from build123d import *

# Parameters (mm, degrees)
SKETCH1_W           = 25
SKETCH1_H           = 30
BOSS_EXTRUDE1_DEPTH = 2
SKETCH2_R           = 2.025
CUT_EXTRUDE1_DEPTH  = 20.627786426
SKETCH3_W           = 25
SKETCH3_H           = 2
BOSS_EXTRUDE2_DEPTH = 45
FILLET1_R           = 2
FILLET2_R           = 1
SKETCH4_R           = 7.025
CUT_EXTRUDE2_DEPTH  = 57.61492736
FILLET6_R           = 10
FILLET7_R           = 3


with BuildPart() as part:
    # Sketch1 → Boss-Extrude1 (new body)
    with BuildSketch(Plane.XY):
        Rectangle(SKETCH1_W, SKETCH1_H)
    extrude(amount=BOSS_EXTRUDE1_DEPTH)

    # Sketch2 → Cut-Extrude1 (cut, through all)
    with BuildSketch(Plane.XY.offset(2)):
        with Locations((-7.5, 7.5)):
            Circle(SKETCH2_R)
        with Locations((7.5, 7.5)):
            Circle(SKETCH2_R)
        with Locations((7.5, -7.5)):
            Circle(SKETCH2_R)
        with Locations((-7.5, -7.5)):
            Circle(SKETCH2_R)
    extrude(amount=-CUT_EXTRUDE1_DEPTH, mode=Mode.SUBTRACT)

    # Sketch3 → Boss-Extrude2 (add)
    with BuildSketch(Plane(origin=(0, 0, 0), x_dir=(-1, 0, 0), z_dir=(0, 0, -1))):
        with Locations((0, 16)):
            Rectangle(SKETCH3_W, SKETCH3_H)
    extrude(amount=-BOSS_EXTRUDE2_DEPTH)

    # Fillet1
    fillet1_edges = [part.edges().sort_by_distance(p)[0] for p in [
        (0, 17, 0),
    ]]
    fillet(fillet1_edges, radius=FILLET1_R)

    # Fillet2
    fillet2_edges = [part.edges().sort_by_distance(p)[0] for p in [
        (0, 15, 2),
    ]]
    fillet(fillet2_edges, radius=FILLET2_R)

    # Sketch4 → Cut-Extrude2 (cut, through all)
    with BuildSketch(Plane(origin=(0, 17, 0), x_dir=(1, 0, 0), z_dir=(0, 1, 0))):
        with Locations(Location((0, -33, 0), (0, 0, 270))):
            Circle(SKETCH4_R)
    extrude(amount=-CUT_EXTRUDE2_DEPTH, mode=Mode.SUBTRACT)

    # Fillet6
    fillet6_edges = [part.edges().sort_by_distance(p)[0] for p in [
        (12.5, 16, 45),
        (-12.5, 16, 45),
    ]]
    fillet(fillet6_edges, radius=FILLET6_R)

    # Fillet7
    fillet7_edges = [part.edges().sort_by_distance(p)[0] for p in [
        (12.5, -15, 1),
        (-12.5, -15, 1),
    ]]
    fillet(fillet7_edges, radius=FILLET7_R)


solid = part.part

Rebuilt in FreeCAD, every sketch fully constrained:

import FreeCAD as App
import Part
import Sketcher

V = App.Vector
Q = App.Units.Quantity


def edges_at(feature, points):
    """Names of the edges that pass closest to the given points."""
    edges = feature.Shape.Edges
    near = lambda p: min(range(len(edges)), key=lambda i: edges[i].distToShape(Part.Vertex(*p))[0])
    return sorted({f"Edge{near(p) + 1}" for p in points})

doc = App.newDocument("Part")
body = doc.addObject("PartDesign::Body", "Body")

# Sketch on XY plane
sketch1 = body.newObject("Sketcher::SketchObject", "Sketch")
sketch1.AttachmentSupport = (doc.getObject("XY_Plane"), [""])
sketch1.MapMode = "FlatFace"
sketch1.addGeometry(Part.LineSegment(V(-12, 15, 0), V(-12, -15, 0)), False)
sketch1.addGeometry(Part.LineSegment(V(-12, -15, 0), V(12, -15, 0)), False)
sketch1.addGeometry(Part.LineSegment(V(12, -15, 0), V(12, 15, 0)), False)
sketch1.addGeometry(Part.LineSegment(V(12, 15, 0), V(-12, 15, 0)), False)
sketch1.addConstraint(Sketcher.Constraint("Coincident", 0, 2, 1, 1))
sketch1.addConstraint(Sketcher.Constraint("Coincident", 1, 2, 2, 1))
sketch1.addConstraint(Sketcher.Constraint("Coincident", 2, 2, 3, 1))
sketch1.addConstraint(Sketcher.Constraint("Coincident", 3, 2, 0, 1))
sketch1.addConstraint(Sketcher.Constraint("Vertical", 0))
sketch1.addConstraint(Sketcher.Constraint("Horizontal", 1))
sketch1.addConstraint(Sketcher.Constraint("Vertical", 2))
sketch1.addConstraint(Sketcher.Constraint("Horizontal", 3))
sketch1.addConstraint(Sketcher.Constraint("Symmetric", 0, 2, 2, 2, -1, 1))
sketch1.addConstraint(Sketcher.Constraint("DistanceX", 1, 1, 1, 2, Q("25 mm")))
sketch1.addConstraint(Sketcher.Constraint("DistanceY", 0, 2, 0, 1, Q("30 mm")))
pad1 = body.newObject("PartDesign::Pad", "Pad")
pad1.Profile = sketch1
pad1.Length = 2

# Sketch on XY plane
sketch2 = body.newObject("Sketcher::SketchObject", "Sketch001")
sketch2.AttachmentSupport = (doc.getObject("XY_Plane"), [""])
sketch2.MapMode = "FlatFace"
sketch2.AttachmentOffset = App.Placement(V(0, 0, 2), App.Rotation())
sketch2.addGeometry(Part.Circle(V(-7.5, 7.5, 0), V(0, 0, 1), 2), False)
sketch2.addGeometry(Part.Circle(V(7.5, 7.5, 0), V(0, 0, 1), 2), False)
sketch2.addGeometry(Part.Circle(V(7.5, -7.5, 0), V(0, 0, 1), 2), False)
sketch2.addGeometry(Part.Circle(V(-7.5, -7.5, 0), V(0, 0, 1), 2), False)
sketch2.addConstraint(Sketcher.Constraint("Equal", 0, 1))
sketch2.addConstraint(Sketcher.Constraint("Equal", 1, 2))
sketch2.addConstraint(Sketcher.Constraint("Equal", 2, 3))
sketch2.addConstraint(Sketcher.Constraint("Symmetric", 0, 3, 2, 3, -1, 1))
sketch2.addConstraint(Sketcher.Constraint("Symmetric", 1, 3, 3, 3, -1, 1))
sketch2.addConstraint(Sketcher.Constraint("Symmetric", 0, 3, 1, 3, -2))
sketch2.addConstraint(Sketcher.Constraint("Diameter", 0, Q("4.05 mm")))
sketch2.addConstraint(Sketcher.Constraint("DistanceX", 0, 3, 1, 3, Q("15 mm")))
sketch2.addConstraint(Sketcher.Constraint("DistanceY", 2, 3, 1, 3, Q("15 mm")))
pocket1 = body.newObject("PartDesign::Pocket", "Pocket")
pocket1.Profile = sketch2
pocket1.Type = "ThroughAll"

# Sketch on XY plane
sketch3 = body.newObject("Sketcher::SketchObject", "Sketch002")
sketch3.AttachmentSupport = (doc.getObject("XY_Plane"), [""])
sketch3.MapMode = "FlatFace"
sketch3.addGeometry(Part.LineSegment(V(12.5, 17, 0), V(12.5, 15, 0)), False)
sketch3.addGeometry(Part.LineSegment(V(12.5, 15, 0), V(-12.5, 15, 0)), False)
sketch3.addGeometry(Part.LineSegment(V(-12.5, 15, 0), V(-12.5, 17, 0)), False)
sketch3.addGeometry(Part.LineSegment(V(-12.5, 17, 0), V(12.5, 17, 0)), False)
sketch3.addConstraint(Sketcher.Constraint("Coincident", 0, 2, 1, 1))
sketch3.addConstraint(Sketcher.Constraint("Coincident", 1, 2, 2, 1))
sketch3.addConstraint(Sketcher.Constraint("Coincident", 2, 2, 3, 1))
sketch3.addConstraint(Sketcher.Constraint("Coincident", 3, 2, 0, 1))
sketch3.addConstraint(Sketcher.Constraint("Vertical", 0))
sketch3.addConstraint(Sketcher.Constraint("Horizontal", 1))
sketch3.addConstraint(Sketcher.Constraint("Vertical", 2))
sketch3.addConstraint(Sketcher.Constraint("Horizontal", 3))
sketch3.addConstraint(Sketcher.Constraint("DistanceX", 1, 2, 1, 1, Q("25 mm")))
sketch3.addConstraint(Sketcher.Constraint("DistanceY", 0, 2, 0, 1, Q("2 mm")))
sketch3.addConstraint(Sketcher.Constraint("DistanceY", -1, 1, 0, 2, Q("15 mm")))
sketch3.addConstraint(Sketcher.Constraint("DistanceX", -1, 1, 0, 2, Q("12.5 mm")))
pad2 = body.newObject("PartDesign::Pad", "Pad001")
pad2.Profile = sketch3
pad2.Length = 45
doc.recompute()

fillet = body.newObject("PartDesign::Fillet", "Fillet")
fillet.Base = (pad2, edges_at(pad2, [(0, 17, 0)]))
fillet.Radius = 2
doc.recompute()

fillet2 = body.newObject("PartDesign::Fillet", "Fillet001")
fillet2.Base = (fillet, edges_at(fillet, [(0, 15, 2)]))
fillet2.Radius = 1

# Sketch on XZ plane
sketch4 = body.newObject("Sketcher::SketchObject", "Sketch003")
sketch4.AttachmentSupport = (doc.getObject("XZ_Plane"), [""])
sketch4.MapMode = "FlatFace"
sketch4.AttachmentOffset = App.Placement(V(0, 0, -17), App.Rotation())
sketch4.addGeometry(Part.Circle(V(0, 33, 0), V(0, 0, 1), 7), False)
sketch4.addConstraint(Sketcher.Constraint("PointOnObject", 0, 3, -2))
sketch4.addConstraint(Sketcher.Constraint("Diameter", 0, Q("14.05 mm")))
sketch4.addConstraint(Sketcher.Constraint("DistanceY", -1, 1, 0, 3, Q("33 mm")))
pocket2 = body.newObject("PartDesign::Pocket", "Pocket001")
pocket2.Profile = sketch4
pocket2.Type = "ThroughAll"
pocket2.Reversed = True
doc.recompute()

fillet3 = body.newObject("PartDesign::Fillet", "Fillet002")
fillet3.Base = (pocket2, edges_at(pocket2, [(12.5, 16, 45), (-12.5, 16, 45)]))
fillet3.Radius = 10
doc.recompute()

fillet4 = body.newObject("PartDesign::Fillet", "Fillet003")
fillet4.Base = (fillet3, edges_at(fillet3, [(12.5, -15, 1), (-12.5, -15, 1)]))
fillet4.Radius = 3

doc.recompute()
